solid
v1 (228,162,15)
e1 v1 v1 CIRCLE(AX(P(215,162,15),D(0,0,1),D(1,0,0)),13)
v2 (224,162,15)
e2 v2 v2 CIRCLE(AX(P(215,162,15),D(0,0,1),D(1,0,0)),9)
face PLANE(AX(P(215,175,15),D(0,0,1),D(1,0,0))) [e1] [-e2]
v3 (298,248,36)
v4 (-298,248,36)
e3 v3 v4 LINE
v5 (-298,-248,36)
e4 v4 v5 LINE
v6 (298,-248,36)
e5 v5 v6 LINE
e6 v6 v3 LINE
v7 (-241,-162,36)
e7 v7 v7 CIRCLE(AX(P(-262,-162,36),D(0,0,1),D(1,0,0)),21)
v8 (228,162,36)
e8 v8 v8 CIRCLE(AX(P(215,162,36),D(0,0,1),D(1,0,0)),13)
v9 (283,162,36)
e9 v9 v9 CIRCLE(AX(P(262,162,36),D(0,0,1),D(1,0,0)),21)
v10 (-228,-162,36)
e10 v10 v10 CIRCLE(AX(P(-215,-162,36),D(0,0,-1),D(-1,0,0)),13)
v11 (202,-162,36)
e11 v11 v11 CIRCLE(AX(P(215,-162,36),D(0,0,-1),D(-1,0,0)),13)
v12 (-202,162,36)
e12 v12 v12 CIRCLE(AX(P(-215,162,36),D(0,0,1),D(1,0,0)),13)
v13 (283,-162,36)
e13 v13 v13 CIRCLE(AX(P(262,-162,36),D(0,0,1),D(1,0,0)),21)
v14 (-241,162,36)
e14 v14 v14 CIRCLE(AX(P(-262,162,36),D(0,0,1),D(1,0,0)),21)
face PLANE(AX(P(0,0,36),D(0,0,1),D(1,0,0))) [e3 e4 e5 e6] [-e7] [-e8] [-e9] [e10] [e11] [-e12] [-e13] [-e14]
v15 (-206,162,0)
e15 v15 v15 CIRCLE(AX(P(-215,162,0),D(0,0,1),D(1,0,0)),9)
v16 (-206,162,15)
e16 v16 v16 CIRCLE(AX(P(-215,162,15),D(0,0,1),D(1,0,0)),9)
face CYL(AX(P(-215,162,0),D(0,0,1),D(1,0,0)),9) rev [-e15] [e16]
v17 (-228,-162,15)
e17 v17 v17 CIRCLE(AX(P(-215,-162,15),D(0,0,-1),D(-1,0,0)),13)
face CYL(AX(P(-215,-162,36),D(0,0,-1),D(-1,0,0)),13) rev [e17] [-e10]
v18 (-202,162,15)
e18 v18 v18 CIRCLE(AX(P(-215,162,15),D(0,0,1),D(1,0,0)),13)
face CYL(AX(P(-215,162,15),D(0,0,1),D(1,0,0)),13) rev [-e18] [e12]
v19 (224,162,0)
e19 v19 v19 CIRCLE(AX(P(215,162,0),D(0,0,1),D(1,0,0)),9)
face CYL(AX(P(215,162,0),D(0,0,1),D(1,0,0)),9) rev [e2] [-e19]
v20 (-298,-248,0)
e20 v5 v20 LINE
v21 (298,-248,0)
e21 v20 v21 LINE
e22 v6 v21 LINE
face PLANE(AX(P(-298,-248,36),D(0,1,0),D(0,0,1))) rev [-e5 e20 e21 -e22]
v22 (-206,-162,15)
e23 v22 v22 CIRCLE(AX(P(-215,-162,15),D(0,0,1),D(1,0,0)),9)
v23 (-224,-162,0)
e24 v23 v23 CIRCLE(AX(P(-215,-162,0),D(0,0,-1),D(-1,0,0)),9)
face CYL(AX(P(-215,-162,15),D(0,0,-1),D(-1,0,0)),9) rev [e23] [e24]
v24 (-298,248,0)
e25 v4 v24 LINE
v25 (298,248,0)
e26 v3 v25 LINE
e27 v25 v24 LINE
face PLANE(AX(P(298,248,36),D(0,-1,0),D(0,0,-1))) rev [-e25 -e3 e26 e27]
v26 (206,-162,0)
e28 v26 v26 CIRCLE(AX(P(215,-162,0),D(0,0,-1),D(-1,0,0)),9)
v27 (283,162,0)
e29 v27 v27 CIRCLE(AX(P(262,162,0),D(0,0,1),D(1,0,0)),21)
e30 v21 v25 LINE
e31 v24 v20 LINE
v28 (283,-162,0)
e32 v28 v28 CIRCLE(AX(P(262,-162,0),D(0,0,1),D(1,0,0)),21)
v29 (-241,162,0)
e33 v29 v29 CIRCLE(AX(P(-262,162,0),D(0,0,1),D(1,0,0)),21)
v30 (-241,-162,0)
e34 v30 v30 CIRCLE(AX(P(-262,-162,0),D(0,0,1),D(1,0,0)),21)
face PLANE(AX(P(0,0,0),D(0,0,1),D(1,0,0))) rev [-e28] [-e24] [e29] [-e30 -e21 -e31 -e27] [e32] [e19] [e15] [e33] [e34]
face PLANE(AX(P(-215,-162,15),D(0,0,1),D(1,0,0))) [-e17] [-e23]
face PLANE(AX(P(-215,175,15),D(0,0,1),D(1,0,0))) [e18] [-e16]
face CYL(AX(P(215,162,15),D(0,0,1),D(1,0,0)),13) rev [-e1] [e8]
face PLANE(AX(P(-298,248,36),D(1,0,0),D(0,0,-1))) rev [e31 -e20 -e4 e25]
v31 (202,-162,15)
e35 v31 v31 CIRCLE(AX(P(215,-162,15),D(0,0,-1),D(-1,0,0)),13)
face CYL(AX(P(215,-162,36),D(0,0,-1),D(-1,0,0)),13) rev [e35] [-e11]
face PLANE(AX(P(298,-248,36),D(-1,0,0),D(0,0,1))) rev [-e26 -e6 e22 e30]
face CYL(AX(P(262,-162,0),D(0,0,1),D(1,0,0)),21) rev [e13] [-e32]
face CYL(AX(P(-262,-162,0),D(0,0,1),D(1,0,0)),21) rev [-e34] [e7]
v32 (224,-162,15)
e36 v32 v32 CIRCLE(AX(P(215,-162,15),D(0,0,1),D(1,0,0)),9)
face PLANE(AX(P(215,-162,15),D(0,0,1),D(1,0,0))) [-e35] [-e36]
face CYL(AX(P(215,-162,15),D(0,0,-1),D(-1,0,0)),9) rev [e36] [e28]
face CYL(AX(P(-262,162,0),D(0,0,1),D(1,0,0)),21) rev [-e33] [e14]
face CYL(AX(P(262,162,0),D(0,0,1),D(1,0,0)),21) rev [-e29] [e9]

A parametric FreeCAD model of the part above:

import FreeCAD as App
import Part
import Sketcher

V = App.Vector
Q = App.Units.Quantity

doc = App.newDocument("Part")
body = doc.addObject("PartDesign::Body", "Body")

# Sketch on XY plane
sketch1 = body.newObject("Sketcher::SketchObject", "Sketch")
sketch1.AttachmentSupport = (doc.getObject("XY_Plane"), [""])
sketch1.MapMode = "FlatFace"
sketch1.addGeometry([
    Part.LineSegment(V(-298, 248, 0), V(-298, -248, 0)),
    Part.LineSegment(V(-298, -248, 0), V(298, -248, 0)),
    Part.LineSegment(V(298, -248, 0), V(298, 248, 0)),
    Part.LineSegment(V(298, 248, 0), V(-298, 248, 0)),
], False)
sketch1.addConstraint([
    Sketcher.Constraint("Coincident", 0, 2, 1, 1),
    Sketcher.Constraint("Coincident", 1, 2, 2, 1),
    Sketcher.Constraint("Coincident", 2, 2, 3, 1),
    Sketcher.Constraint("Coincident", 3, 2, 0, 1),
    Sketcher.Constraint("Vertical", 0),
    Sketcher.Constraint("Horizontal", 1),
    Sketcher.Constraint("Vertical", 2),
    Sketcher.Constraint("Horizontal", 3),
    Sketcher.Constraint("Symmetric", 0, 2, 2, 2, -1, 1),
    Sketcher.Constraint("DistanceX", 1, 1, 1, 2, Q("596 mm")),
    Sketcher.Constraint("DistanceY", 0, 2, 0, 1, Q("496 mm")),
])
pad1 = body.newObject("PartDesign::Pad", "Pad")
pad1.Profile = sketch1
pad1.Length = 36

# Sketch on XY plane
sketch2 = body.newObject("Sketcher::SketchObject", "Sketch001")
sketch2.AttachmentSupport = (doc.getObject("XY_Plane"), [""])
sketch2.MapMode = "FlatFace"
sketch2.AttachmentOffset = App.Placement(V(0, 0, 36), App.Rotation())
sketch2.addGeometry(Part.Circle(V(262, 162, 0), V(0, 0, 1), 21), False)
sketch2.addConstraint([
    Sketcher.Constraint("Diameter", 0, Q("42 mm")),
    Sketcher.Constraint("DistanceX", -1, 1, 0, 3, Q("262 mm")),
    Sketcher.Constraint("DistanceY", -1, 1, 0, 3, Q("162 mm")),
])
pocket1 = body.newObject("PartDesign::Pocket", "Pocket")
pocket1.Profile = sketch2
pocket1.Length = 36

# Sketch on XY plane
sketch3 = body.newObject("Sketcher::SketchObject", "Sketch002")
sketch3.AttachmentSupport = (doc.getObject("XY_Plane"), [""])
sketch3.MapMode = "FlatFace"
sketch3.AttachmentOffset = App.Placement(V(0, 0, 36), App.Rotation())
sketch3.addGeometry(Part.Circle(V(262, -162, 0), V(0, 0, 1), 21), False)
sketch3.addConstraint([
    Sketcher.Constraint("Diameter", 0, Q("42 mm")),
    Sketcher.Constraint("DistanceX", -1, 1, 0, 3, Q("262 mm")),
    Sketcher.Constraint("DistanceY", 0, 3, -1, 1, Q("162 mm")),
])
pocket2 = body.newObject("PartDesign::Pocket", "Pocket001")
pocket2.Profile = sketch3
pocket2.Length = 36

# Sketch on XY plane
sketch4 = body.newObject("Sketcher::SketchObject", "Sketch003")
sketch4.AttachmentSupport = (doc.getObject("XY_Plane"), [""])
sketch4.MapMode = "FlatFace"
sketch4.AttachmentOffset = App.Placement(V(0, 0, 36), App.Rotation())
sketch4.addGeometry(Part.Circle(V(-262, -162, 0), V(0, 0, 1), 21), False)
sketch4.addConstraint([
    Sketcher.Constraint("Diameter", 0, Q("42 mm")),
    Sketcher.Constraint("DistanceX", 0, 3, -1, 1, Q("262 mm")),
    Sketcher.Constraint("DistanceY", 0, 3, -1, 1, Q("162 mm")),
])
pocket3 = body.newObject("PartDesign::Pocket", "Pocket002")
pocket3.Profile = sketch4
pocket3.Length = 36

# Sketch on XY plane
sketch5 = body.newObject("Sketcher::SketchObject", "Sketch004")
sketch5.AttachmentSupport = (doc.getObject("XY_Plane"), [""])
sketch5.MapMode = "FlatFace"
sketch5.AttachmentOffset = App.Placement(V(0, 0, 36), App.Rotation())
sketch5.addGeometry(Part.Circle(V(-262, 162, 0), V(0, 0, 1), 21), False)
sketch5.addConstraint([
    Sketcher.Constraint("Diameter", 0, Q("42 mm")),
    Sketcher.Constraint("DistanceX", 0, 3, -1, 1, Q("262 mm")),
    Sketcher.Constraint("DistanceY", -1, 1, 0, 3, Q("162 mm")),
])
pocket4 = body.newObject("PartDesign::Pocket", "Pocket003")
pocket4.Profile = sketch5
pocket4.Length = 36

# Sketch on YZ plane
sketch6 = body.newObject("Sketcher::SketchObject", "Sketch005")
sketch6.AttachmentSupport = (doc.getObject("YZ_Plane"), [""])
sketch6.MapMode = "FlatFace"
sketch6.AttachmentOffset = App.Placement(V(0, 0, 215), App.Rotation())
sketch6.addGeometry([
    Part.LineSegment(V(171, 15, 0), V(162, 15, 0)),
    Part.LineSegment(V(162, 15, 0), V(162, 0, 0)),
    Part.LineSegment(V(162, 0, 0), V(171, 0, 0)),
    Part.LineSegment(V(171, 0, 0), V(171, 15, 0)),
], False)
sketch6.addGeometry(Part.LineSegment(V(162, 0, 0), V(162, 15, 0)), True)  # axis
sketch6.addConstraint([
    Sketcher.Constraint("Coincident", 0, 2, 1, 1),
    Sketcher.Constraint("Coincident", 1, 2, 2, 1),
    Sketcher.Constraint("Coincident", 2, 2, 3, 1),
    Sketcher.Constraint("Coincident", 3, 2, 0, 1),
    Sketcher.Constraint("Horizontal", 0),
    Sketcher.Constraint("Vertical", 1),
    Sketcher.Constraint("Horizontal", 2),
    Sketcher.Constraint("Vertical", 3),
    Sketcher.Constraint("Vertical", 4),
    Sketcher.Constraint("Coincident", 4, 1, 1, 2),
    Sketcher.Constraint("PointOnObject", 1, 2, -1),
    Sketcher.Constraint("Horizontal", 3, 2, 4, 2),
    Sketcher.Constraint("DistanceX", 0, 2, 0, 1, Q("9 mm")),
    Sketcher.Constraint("DistanceY", 1, 2, 1, 1, Q("15 mm")),
    Sketcher.Constraint("DistanceX", -1, 1, 0, 2, Q("162 mm")),
])
groove = body.newObject("PartDesign::Groove", "Groove")
groove.Profile = sketch6
groove.ReferenceAxis = (sketch6, ["Axis0"])
groove.Angle = 360

# Sketch on YZ plane
sketch7 = body.newObject("Sketcher::SketchObject", "Sketch006")
sketch7.AttachmentSupport = (doc.getObject("YZ_Plane"), [""])
sketch7.MapMode = "FlatFace"
sketch7.AttachmentOffset = App.Placement(V(0, 0, 215), App.Rotation())
sketch7.addGeometry([
    Part.LineSegment(V(-162, 15, 0), V(-171, 15, 0)),
    Part.LineSegment(V(-171, 15, 0), V(-171, 0, 0)),
    Part.LineSegment(V(-171, 0, 0), V(-162, 0, 0)),
    Part.LineSegment(V(-162, 0, 0), V(-162, 15, 0)),
], False)
sketch7.addGeometry(Part.LineSegment(V(-162, 15, 0), V(-162, 0, 0)), True)  # axis
sketch7.addConstraint([
    Sketcher.Constraint("Coincident", 0, 2, 1, 1),
    Sketcher.Constraint("Coincident", 1, 2, 2, 1),
    Sketcher.Constraint("Coincident", 2, 2, 3, 1),
    Sketcher.Constraint("Coincident", 3, 2, 0, 1),
    Sketcher.Constraint("Horizontal", 0),
    Sketcher.Constraint("Vertical", 1),
    Sketcher.Constraint("Horizontal", 2),
    Sketcher.Constraint("Vertical", 3),
    Sketcher.Constraint("Vertical", 4),
    Sketcher.Constraint("Coincident", 4, 1, 3, 2),
    Sketcher.Constraint("PointOnObject", 1, 2, -1),
    Sketcher.Constraint("PointOnObject", 4, 2, -1),
    Sketcher.Constraint("DistanceX", 0, 2, 0, 1, Q("9 mm")),
    Sketcher.Constraint("DistanceY", 1, 2, 1, 1, Q("15 mm")),
    Sketcher.Constraint("DistanceX", 0, 2, -1, 1, Q("171 mm")),
])
groove2 = body.newObject("PartDesign::Groove", "Groove001")
groove2.Profile = sketch7
groove2.ReferenceAxis = (sketch7, ["Axis0"])
groove2.Angle = 360

# Sketch on YZ plane
sketch8 = body.newObject("Sketcher::SketchObject", "Sketch007")
sketch8.AttachmentSupport = (doc.getObject("YZ_Plane"), [""])
sketch8.MapMode = "FlatFace"
sketch8.AttachmentOffset = App.Placement(V(0, 0, -215), App.Rotation())
sketch8.addGeometry([
    Part.LineSegment(V(171, 15, 0), V(162, 15, 0)),
    Part.LineSegment(V(162, 15, 0), V(162, 0, 0)),
    Part.LineSegment(V(162, 0, 0), V(171, 0, 0)),
    Part.LineSegment(V(171, 0, 0), V(171, 15, 0)),
], False)
sketch8.addGeometry(Part.LineSegment(V(162, 0, 0), V(162, 15, 0)), True)  # axis
sketch8.addConstraint([
    Sketcher.Constraint("Coincident", 0, 2, 1, 1),
    Sketcher.Constraint("Coincident", 1, 2, 2, 1),
    Sketcher.Constraint("Coincident", 2, 2, 3, 1),
    Sketcher.Constraint("Coincident", 3, 2, 0, 1),
    Sketcher.Constraint("Horizontal", 0),
    Sketcher.Constraint("Vertical", 1),
    Sketcher.Constraint("Horizontal", 2),
    Sketcher.Constraint("Vertical", 3),
    Sketcher.Constraint("Vertical", 4),
    Sketcher.Constraint("Coincident", 4, 1, 1, 2),
    Sketcher.Constraint("PointOnObject", 1, 2, -1),
    Sketcher.Constraint("Horizontal", 3, 2, 4, 2),
    Sketcher.Constraint("DistanceX", 0, 2, 0, 1, Q("9 mm")),
    Sketcher.Constraint("DistanceY", 1, 2, 1, 1, Q("15 mm")),
    Sketcher.Constraint("DistanceX", -1, 1, 0, 2, Q("162 mm")),
])
groove3 = body.newObject("PartDesign::Groove", "Groove002")
groove3.Profile = sketch8
groove3.ReferenceAxis = (sketch8, ["Axis0"])
groove3.Angle = 360

# Sketch on YZ plane
sketch9 = body.newObject("Sketcher::SketchObject", "Sketch008")
sketch9.AttachmentSupport = (doc.getObject("YZ_Plane"), [""])
sketch9.MapMode = "FlatFace"
sketch9.AttachmentOffset = App.Placement(V(0, 0, -215), App.Rotation())
sketch9.addGeometry([
    Part.LineSegment(V(-162, 15, 0), V(-171, 15, 0)),
    Part.LineSegment(V(-171, 15, 0), V(-171, 0, 0)),
    Part.LineSegment(V(-171, 0, 0), V(-162, 0, 0)),
    Part.LineSegment(V(-162, 0, 0), V(-162, 15, 0)),
], False)
sketch9.addGeometry(Part.LineSegment(V(-162, 15, 0), V(-162, 0, 0)), True)  # axis
sketch9.addConstraint([
    Sketcher.Constraint("Coincident", 0, 2, 1, 1),
    Sketcher.Constraint("Coincident", 1, 2, 2, 1),
    Sketcher.Constraint("Coincident", 2, 2, 3, 1),
    Sketcher.Constraint("Coincident", 3, 2, 0, 1),
    Sketcher.Constraint("Horizontal", 0),
    Sketcher.Constraint("Vertical", 1),
    Sketcher.Constraint("Horizontal", 2),
    Sketcher.Constraint("Vertical", 3),
    Sketcher.Constraint("Vertical", 4),
    Sketcher.Constraint("Coincident", 4, 1, 3, 2),
    Sketcher.Constraint("PointOnObject", 1, 2, -1),
    Sketcher.Constraint("PointOnObject", 4, 2, -1),
    Sketcher.Constraint("DistanceX", 0, 2, 0, 1, Q("9 mm")),
    Sketcher.Constraint("DistanceY", 1, 2, 1, 1, Q("15 mm")),
    Sketcher.Constraint("DistanceX", 0, 2, -1, 1, Q("171 mm")),
])
groove4 = body.newObject("PartDesign::Groove", "Groove003")
groove4.Profile = sketch9
groove4.ReferenceAxis = (sketch9, ["Axis0"])
groove4.Angle = 360

# Sketch on YZ plane
sketch10 = body.newObject("Sketcher::SketchObject", "Sketch009")
sketch10.AttachmentSupport = (doc.getObject("YZ_Plane"), [""])
sketch10.MapMode = "FlatFace"
sketch10.AttachmentOffset = App.Placement(V(0, 0, 215), App.Rotation())
sketch10.addGeometry([
    Part.LineSegment(V(175, 36, 0), V(162, 36, 0)),
    Part.LineSegment(V(162, 36, 0), V(162, 15, 0)),
    Part.LineSegment(V(162, 15, 0), V(175, 15, 0)),
    Part.LineSegment(V(175, 15, 0), V(175, 36, 0)),
], False)
sketch10.addGeometry(Part.LineSegment(V(162, 15, 0), V(162, 36, 0)), True)  # axis
sketch10.addConstraint([
    Sketcher.Constraint("Coincident", 0, 2, 1, 1),
    Sketcher.Constraint("Coincident", 1, 2, 2, 1),
    Sketcher.Constraint("Coincident", 2, 2, 3, 1),
    Sketcher.Constraint("Coincident", 3, 2, 0, 1),
    Sketcher.Constraint("Horizontal", 0),
    Sketcher.Constraint("Vertical", 1),
    Sketcher.Constraint("Horizontal", 2),
    Sketcher.Constraint("Vertical", 3),
    Sketcher.Constraint("Vertical", 4),
    Sketcher.Constraint("Coincident", 4, 1, 1, 2),
    Sketcher.Constraint("Horizontal", 3, 2, 4, 2),
    Sketcher.Constraint("DistanceX", 0, 2, 0, 1, Q("13 mm")),
    Sketcher.Constraint("DistanceY", 1, 2, 1, 1, Q("21 mm")),
    Sketcher.Constraint("DistanceX", -1, 1, 0, 2, Q("162 mm")),
    Sketcher.Constraint("DistanceY", -1, 1, 0, 2, Q("36 mm")),
])
groove5 = body.newObject("PartDesign::Groove", "Groove004")
groove5.Profile = sketch10
groove5.ReferenceAxis = (sketch10, ["Axis0"])
groove5.Angle = 360

# Sketch on YZ plane
sketch11 = body.newObject("Sketcher::SketchObject", "Sketch010")
sketch11.AttachmentSupport = (doc.getObject("YZ_Plane"), [""])
sketch11.MapMode = "FlatFace"
sketch11.AttachmentOffset = App.Placement(V(0, 0, 215), App.Rotation())
sketch11.addGeometry([
    Part.LineSegment(V(-162, 36, 0), V(-175, 36, 0)),
    Part.LineSegment(V(-175, 36, 0), V(-175, 15, 0)),
    Part.LineSegment(V(-175, 15, 0), V(-162, 15, 0)),
    Part.LineSegment(V(-162, 15, 0), V(-162, 36, 0)),
], False)
sketch11.addGeometry(Part.LineSegment(V(-162, 36, 0), V(-162, 15, 0)), True)  # axis
sketch11.addConstraint([
    Sketcher.Constraint("Coincident", 0, 2, 1, 1),
    Sketcher.Constraint("Coincident", 1, 2, 2, 1),
    Sketcher.Constraint("Coincident", 2, 2, 3, 1),
    Sketcher.Constraint("Coincident", 3, 2, 0, 1),
    Sketcher.Constraint("Horizontal", 0),
    Sketcher.Constraint("Vertical", 1),
    Sketcher.Constraint("Horizontal", 2),
    Sketcher.Constraint("Vertical", 3),
    Sketcher.Constraint("Vertical", 4),
    Sketcher.Constraint("Coincident", 4, 1, 3, 2),
    Sketcher.Constraint("Horizontal", 1, 2, 4, 2),
    Sketcher.Constraint("DistanceX", 0, 2, 0, 1, Q("13 mm")),
    Sketcher.Constraint("DistanceY", 1, 2, 1, 1, Q("21 mm")),
    Sketcher.Constraint("DistanceX", 0, 2, -1, 1, Q("175 mm")),
    Sketcher.Constraint("DistanceY", -1, 1, 0, 2, Q("36 mm")),
])
groove6 = body.newObject("PartDesign::Groove", "Groove005")
groove6.Profile = sketch11
groove6.ReferenceAxis = (sketch11, ["Axis0"])
groove6.Angle = 360

# Sketch on YZ plane
sketch12 = body.newObject("Sketcher::SketchObject", "Sketch011")
sketch12.AttachmentSupport = (doc.getObject("YZ_Plane"), [""])
sketch12.MapMode = "FlatFace"
sketch12.AttachmentOffset = App.Placement(V(0, 0, -215), App.Rotation())
sketch12.addGeometry([
    Part.LineSegment(V(-162, 36, 0), V(-175, 36, 0)),
    Part.LineSegment(V(-175, 36, 0), V(-175, 15, 0)),
    Part.LineSegment(V(-175, 15, 0), V(-162, 15, 0)),
    Part.LineSegment(V(-162, 15, 0), V(-162, 36, 0)),
], False)
sketch12.addGeometry(Part.LineSegment(V(-162, 36, 0), V(-162, 15, 0)), True)  # axis
sketch12.addConstraint([
    Sketcher.Constraint("Coincident", 0, 2, 1, 1),
    Sketcher.Constraint("Coincident", 1, 2, 2, 1),
    Sketcher.Constraint("Coincident", 2, 2, 3, 1),
    Sketcher.Constraint("Coincident", 3, 2, 0, 1),
    Sketcher.Constraint("Horizontal", 0),
    Sketcher.Constraint("Vertical", 1),
    Sketcher.Constraint("Horizontal", 2),
    Sketcher.Constraint("Vertical", 3),
    Sketcher.Constraint("Vertical", 4),
    Sketcher.Constraint("Coincident", 4, 1, 3, 2),
    Sketcher.Constraint("Horizontal", 1, 2, 4, 2),
    Sketcher.Constraint("DistanceX", 0, 2, 0, 1, Q("13 mm")),
    Sketcher.Constraint("DistanceY", 1, 2, 1, 1, Q("21 mm")),
    Sketcher.Constraint("DistanceX", 0, 2, -1, 1, Q("175 mm")),
    Sketcher.Constraint("DistanceY", -1, 1, 0, 2, Q("36 mm")),
])
groove7 = body.newObject("PartDesign::Groove", "Groove006")
groove7.Profile = sketch12
groove7.ReferenceAxis = (sketch12, ["Axis0"])
groove7.Angle = 360

# Sketch on YZ plane
sketch13 = body.newObject("Sketcher::SketchObject", "Sketch012")
sketch13.AttachmentSupport = (doc.getObject("YZ_Plane"), [""])
sketch13.MapMode = "FlatFace"
sketch13.AttachmentOffset = App.Placement(V(0, 0, -215), App.Rotation())
sketch13.addGeometry([
    Part.LineSegment(V(175, 36, 0), V(162, 36, 0)),
    Part.LineSegment(V(162, 36, 0), V(162, 15, 0)),
    Part.LineSegment(V(162, 15, 0), V(175, 15, 0)),
    Part.LineSegment(V(175, 15, 0), V(175, 36, 0)),
], False)
sketch13.addGeometry(Part.LineSegment(V(162, 15, 0), V(162, 36, 0)), True)  # axis
sketch13.addConstraint([
    Sketcher.Constraint("Coincident", 0, 2, 1, 1),
    Sketcher.Constraint("Coincident", 1, 2, 2, 1),
    Sketcher.Constraint("Coincident", 2, 2, 3, 1),
    Sketcher.Constraint("Coincident", 3, 2, 0, 1),
    Sketcher.Constraint("Horizontal", 0),
    Sketcher.Constraint("Vertical", 1),
    Sketcher.Constraint("Horizontal", 2),
    Sketcher.Constraint("Vertical", 3),
    Sketcher.Constraint("Vertical", 4),
    Sketcher.Constraint("Coincident", 4, 1, 1, 2),
    Sketcher.Constraint("Horizontal", 3, 2, 4, 2),
    Sketcher.Constraint("DistanceX", 0, 2, 0, 1, Q("13 mm")),
    Sketcher.Constraint("DistanceY", 1, 2, 1, 1, Q("21 mm")),
    Sketcher.Constraint("DistanceX", -1, 1, 0, 2, Q("162 mm")),
    Sketcher.Constraint("DistanceY", -1, 1, 0, 2, Q("36 mm")),
])
groove8 = body.newObject("PartDesign::Groove", "Groove007")
groove8.Profile = sketch13
groove8.ReferenceAxis = (sketch13, ["Axis0"])
groove8.Angle = 360

doc.recompute()
